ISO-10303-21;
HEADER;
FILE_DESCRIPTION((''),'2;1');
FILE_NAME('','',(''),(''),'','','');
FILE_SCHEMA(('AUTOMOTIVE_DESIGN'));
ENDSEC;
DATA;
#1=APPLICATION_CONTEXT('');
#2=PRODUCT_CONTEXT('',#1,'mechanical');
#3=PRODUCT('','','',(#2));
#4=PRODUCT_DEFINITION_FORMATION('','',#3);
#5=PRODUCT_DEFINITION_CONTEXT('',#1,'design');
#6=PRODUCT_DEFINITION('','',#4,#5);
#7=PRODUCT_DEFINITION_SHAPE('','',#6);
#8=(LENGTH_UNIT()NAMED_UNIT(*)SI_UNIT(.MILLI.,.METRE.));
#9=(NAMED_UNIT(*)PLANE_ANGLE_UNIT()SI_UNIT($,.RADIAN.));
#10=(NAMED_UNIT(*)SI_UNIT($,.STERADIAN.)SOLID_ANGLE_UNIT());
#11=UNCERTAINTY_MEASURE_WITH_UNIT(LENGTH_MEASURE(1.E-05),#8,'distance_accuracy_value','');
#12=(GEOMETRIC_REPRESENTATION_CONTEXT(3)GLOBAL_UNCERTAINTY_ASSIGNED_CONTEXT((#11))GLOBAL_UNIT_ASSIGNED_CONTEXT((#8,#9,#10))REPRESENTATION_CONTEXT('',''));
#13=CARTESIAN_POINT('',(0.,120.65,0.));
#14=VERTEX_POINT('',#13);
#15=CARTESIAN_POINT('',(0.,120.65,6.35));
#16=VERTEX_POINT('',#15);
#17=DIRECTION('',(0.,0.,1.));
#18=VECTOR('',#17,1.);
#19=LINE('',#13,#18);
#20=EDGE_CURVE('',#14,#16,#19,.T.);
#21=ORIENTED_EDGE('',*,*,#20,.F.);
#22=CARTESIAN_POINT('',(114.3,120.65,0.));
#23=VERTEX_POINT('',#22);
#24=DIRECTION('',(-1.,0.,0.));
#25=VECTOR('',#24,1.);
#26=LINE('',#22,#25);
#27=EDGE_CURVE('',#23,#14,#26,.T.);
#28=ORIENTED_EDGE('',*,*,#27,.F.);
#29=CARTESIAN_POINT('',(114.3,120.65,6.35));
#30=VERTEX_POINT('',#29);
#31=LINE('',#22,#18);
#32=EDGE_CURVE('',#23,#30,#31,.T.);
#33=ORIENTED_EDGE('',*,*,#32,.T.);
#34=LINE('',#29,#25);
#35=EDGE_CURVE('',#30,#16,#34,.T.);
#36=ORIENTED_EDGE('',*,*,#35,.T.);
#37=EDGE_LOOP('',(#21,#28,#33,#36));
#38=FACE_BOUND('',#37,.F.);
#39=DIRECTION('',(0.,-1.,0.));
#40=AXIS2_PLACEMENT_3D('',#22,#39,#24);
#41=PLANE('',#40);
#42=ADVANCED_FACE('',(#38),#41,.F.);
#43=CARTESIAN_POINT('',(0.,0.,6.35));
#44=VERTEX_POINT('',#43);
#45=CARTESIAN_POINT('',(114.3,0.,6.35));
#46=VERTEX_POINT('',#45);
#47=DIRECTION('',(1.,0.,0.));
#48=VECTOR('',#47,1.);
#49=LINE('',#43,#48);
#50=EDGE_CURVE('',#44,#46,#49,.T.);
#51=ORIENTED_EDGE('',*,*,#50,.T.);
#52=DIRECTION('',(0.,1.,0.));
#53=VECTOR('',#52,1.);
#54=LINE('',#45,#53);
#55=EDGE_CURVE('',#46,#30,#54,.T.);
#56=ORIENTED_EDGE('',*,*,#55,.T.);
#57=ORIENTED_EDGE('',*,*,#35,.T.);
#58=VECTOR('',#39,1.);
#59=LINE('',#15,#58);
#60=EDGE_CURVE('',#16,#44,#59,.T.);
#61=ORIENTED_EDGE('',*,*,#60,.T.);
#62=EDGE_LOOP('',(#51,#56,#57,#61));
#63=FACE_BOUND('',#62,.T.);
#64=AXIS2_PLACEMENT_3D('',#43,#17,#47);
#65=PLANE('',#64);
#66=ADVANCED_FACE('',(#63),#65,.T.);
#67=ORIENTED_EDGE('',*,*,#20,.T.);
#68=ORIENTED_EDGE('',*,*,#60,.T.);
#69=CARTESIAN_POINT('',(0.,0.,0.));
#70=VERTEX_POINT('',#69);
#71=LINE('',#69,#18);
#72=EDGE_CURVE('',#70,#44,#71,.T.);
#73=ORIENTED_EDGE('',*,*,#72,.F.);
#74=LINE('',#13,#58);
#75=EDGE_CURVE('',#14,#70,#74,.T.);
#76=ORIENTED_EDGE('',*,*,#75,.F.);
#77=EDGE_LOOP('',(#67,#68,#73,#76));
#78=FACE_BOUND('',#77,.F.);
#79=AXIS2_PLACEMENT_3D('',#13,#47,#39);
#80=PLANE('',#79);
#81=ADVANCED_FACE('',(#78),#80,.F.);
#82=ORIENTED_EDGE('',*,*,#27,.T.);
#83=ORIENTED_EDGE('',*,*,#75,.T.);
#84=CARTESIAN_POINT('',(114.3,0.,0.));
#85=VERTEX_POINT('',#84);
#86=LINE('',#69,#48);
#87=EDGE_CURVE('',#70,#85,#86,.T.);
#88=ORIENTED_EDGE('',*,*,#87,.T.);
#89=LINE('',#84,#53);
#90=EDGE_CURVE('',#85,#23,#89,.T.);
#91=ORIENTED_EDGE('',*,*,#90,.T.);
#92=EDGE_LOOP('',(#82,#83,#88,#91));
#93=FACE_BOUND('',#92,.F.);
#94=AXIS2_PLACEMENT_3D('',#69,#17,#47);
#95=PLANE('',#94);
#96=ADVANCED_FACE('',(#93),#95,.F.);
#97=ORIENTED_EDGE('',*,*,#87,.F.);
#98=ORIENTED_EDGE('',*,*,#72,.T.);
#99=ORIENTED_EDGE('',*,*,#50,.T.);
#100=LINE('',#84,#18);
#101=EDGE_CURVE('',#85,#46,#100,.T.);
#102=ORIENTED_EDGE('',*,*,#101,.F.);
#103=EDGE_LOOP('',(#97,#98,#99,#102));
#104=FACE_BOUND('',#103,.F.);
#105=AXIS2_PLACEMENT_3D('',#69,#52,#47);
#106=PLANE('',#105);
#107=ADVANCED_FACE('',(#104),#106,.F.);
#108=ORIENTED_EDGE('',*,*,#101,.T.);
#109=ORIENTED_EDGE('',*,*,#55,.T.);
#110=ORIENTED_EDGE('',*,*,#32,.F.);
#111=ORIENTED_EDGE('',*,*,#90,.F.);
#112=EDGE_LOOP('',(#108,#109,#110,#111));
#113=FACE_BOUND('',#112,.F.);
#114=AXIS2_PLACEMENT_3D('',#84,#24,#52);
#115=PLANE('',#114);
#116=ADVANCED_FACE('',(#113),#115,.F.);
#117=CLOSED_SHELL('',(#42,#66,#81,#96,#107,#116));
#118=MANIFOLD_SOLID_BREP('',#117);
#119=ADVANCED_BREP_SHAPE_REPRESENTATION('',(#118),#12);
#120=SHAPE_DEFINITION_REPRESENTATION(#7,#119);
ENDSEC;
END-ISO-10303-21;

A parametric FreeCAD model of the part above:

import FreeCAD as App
import Part
import Sketcher

V = App.Vector
Q = App.Units.Quantity


def add_polygon(sketch, points):
    """Adds a closed chain of lines whose ends are joined by coincident constraints."""
    first, n = sketch.GeometryCount, len(points)
    for a, b in zip(points, points[1:] + points[:1]):
        sketch.addGeometry(Part.LineSegment(App.Vector(*a, 0), App.Vector(*b, 0)), False)
    for i in range(n):
        sketch.addConstraint(Sketcher.Constraint("Coincident", first + i, 2, first + (i + 1) % n, 1))

doc = App.newDocument("Part")
body = doc.addObject("PartDesign::Body", "Body")

# Sketch on XY plane
sketch1 = body.newObject("Sketcher::SketchObject", "Sketch")
sketch1.AttachmentSupport = (doc.getObject("XY_Plane"), [""])
sketch1.MapMode = "FlatFace"
add_polygon(sketch1, [(0, 120.65), (0, 0), (114.3, 0), (114.3, 120.65)])  # lines 0-3
sketch1.addConstraint([
    Sketcher.Constraint("Vertical", 0),
    Sketcher.Constraint("Horizontal", 1),
    Sketcher.Constraint("Vertical", 2),
    Sketcher.Constraint("Horizontal", 3),
    Sketcher.Constraint("Coincident", 0, 2, -1, 1),
    Sketcher.Constraint("DistanceX", 1, 1, 1, 2, Q("4.5 in")),
    Sketcher.Constraint("DistanceY", 0, 2, 0, 1, Q("4.75 in")),
])
pad1 = body.newObject("PartDesign::Pad", "Pad")
pad1.Profile = sketch1
pad1.Length = Q("0.25 in")

doc.recompute()
